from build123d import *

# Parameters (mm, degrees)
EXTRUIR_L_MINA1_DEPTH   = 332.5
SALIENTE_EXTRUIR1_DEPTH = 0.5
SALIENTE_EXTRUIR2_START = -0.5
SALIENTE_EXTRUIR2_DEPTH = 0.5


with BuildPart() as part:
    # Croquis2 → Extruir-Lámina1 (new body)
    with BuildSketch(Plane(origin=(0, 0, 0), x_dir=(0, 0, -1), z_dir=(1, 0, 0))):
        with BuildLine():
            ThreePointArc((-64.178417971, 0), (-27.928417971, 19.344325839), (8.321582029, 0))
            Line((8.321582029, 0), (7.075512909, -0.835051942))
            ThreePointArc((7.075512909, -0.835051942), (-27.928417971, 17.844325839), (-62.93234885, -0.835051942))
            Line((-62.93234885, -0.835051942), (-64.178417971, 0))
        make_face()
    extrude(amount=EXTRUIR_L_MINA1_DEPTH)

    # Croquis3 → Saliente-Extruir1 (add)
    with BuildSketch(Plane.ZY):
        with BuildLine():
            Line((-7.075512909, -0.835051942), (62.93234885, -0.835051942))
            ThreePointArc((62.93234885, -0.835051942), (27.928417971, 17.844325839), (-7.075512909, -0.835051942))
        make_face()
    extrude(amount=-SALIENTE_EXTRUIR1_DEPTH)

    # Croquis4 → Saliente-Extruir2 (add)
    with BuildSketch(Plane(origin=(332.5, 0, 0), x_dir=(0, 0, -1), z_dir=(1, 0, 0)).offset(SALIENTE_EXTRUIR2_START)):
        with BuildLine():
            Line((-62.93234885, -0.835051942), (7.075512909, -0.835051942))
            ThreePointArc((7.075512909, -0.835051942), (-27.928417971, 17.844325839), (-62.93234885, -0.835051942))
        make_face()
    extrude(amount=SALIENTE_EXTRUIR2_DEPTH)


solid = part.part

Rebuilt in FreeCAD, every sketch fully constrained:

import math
import FreeCAD as App
import Part
import Sketcher
Q = App.Units.Quantity

doc = App.newDocument("Part")
params = doc.addObject("Spreadsheet::Sheet", "Params")
for row, (alias, value) in enumerate([
    ("sketch1_length", "1.5 mm"),
    ("pad1_length", "332.5 mm"),
    ("pad2_length", "0.5 mm"),
    ("pad3_length", "0.5 mm"),
], start=1):
    params.set(f"A{row}", alias)
    params.set(f"B{row}", "=" + value)
    params.setAlias(f"B{row}", alias)

body = doc.addObject("PartDesign::Body", "Body")

# Sketch on YZ plane
sketch1 = doc.addObject("Sketcher::SketchObject", "Sketch")
body.addObject(sketch1)
sketch1.AttachmentSupport = (doc.YZ_Plane, [""])
sketch1.MapMode = "FlatFace"
sketch1.addGeometry([
    Part.ArcOfCircle(Part.Circle(App.Vector(-24.2929, 27.928418, 0), App.Vector(0, 0, 1), 43.637226), math.radians(-56.172024), math.radians(56.172024)),
    Part.LineSegment(App.Vector(0, 64.178418, 0), App.Vector(-0.835052, 62.932349, 0)),
    Part.ArcOfCircle(Part.Circle(App.Vector(-24.2929, 27.928418, 0), App.Vector(0, 0, 1), 42.137226), math.radians(-56.172024), math.radians(56.172024)),
    Part.LineSegment(App.Vector(-0.835052, -7.075513, 0), App.Vector(0, -8.321582, 0)),
], False)
sketch1.addConstraint([
    Sketcher.Constraint("Coincident", 0, 2, 1, 1),
    Sketcher.Constraint("Coincident", 1, 2, 2, 2),
    Sketcher.Constraint("Coincident", 2, 1, 3, 1),
    Sketcher.Constraint("Coincident", 3, 2, 0, 1),
    Sketcher.Constraint("Coincident", 2, 3, 0, 3),
    Sketcher.Constraint("PointOnObject", 0, 2, -2),
    Sketcher.Constraint("PointOnObject", 3, 2, -2),
    Sketcher.Constraint("Vertical", 1, 2, 2, 1),
    Sketcher.Constraint("Distance", 1, Q("1.5 mm")),
    Sketcher.Constraint("DistanceY", 3, 2, 0, 2, Q("72.5 mm")),
    Sketcher.Constraint("Radius", 0, Q("43.637226 mm")),
    Sketcher.Constraint("DistanceX", 1, 2, -1, 1, Q("0.835052 mm")),
    Sketcher.Constraint("DistanceY", -1, 1, 1, 2, Q("62.932349 mm")),
])
sketch1.setExpression("Constraints[8]", "Params.sketch1_length")
pad1 = doc.addObject("PartDesign::Pad", "Pad")
body.addObject(pad1)
pad1.Profile = sketch1
pad1.setExpression("Length", "Params.pad1_length")

# Sketch on YZ plane
sketch2 = doc.addObject("Sketcher::SketchObject", "Sketch001")
body.addObject(sketch2)
sketch2.AttachmentSupport = (doc.YZ_Plane, [""])
sketch2.MapMode = "FlatFace"
sketch2.addGeometry([
    Part.LineSegment(App.Vector(-0.835052, -7.075513, 0), App.Vector(-0.835052, 62.932349, 0)),
    Part.ArcOfCircle(Part.Circle(App.Vector(-24.2929, 27.928418, 0), App.Vector(0, 0, 1), 42.137226), math.radians(-56.172024), math.radians(56.172024)),
], False)
sketch2.addConstraint([
    Sketcher.Constraint("Coincident", 0, 1, 1, 1),
    Sketcher.Constraint("Coincident", 1, 2, 0, 2),
    Sketcher.Constraint("Vertical", 0),
    Sketcher.Constraint("Radius", 1, Q("42.137226 mm")),
    Sketcher.Constraint("DistanceY", 0, 1, 0, 2, Q("70.007862 mm")),
    Sketcher.Constraint("DistanceX", 1, 3, -1, 1, Q("24.2929 mm")),
    Sketcher.Constraint("DistanceY", -1, 1, 1, 2, Q("62.932349 mm")),
])
pad2 = doc.addObject("PartDesign::Pad", "Pad001")
body.addObject(pad2)
pad2.Profile = sketch2
pad2.setExpression("Length", "Params.pad2_length")

# Sketch on YZ plane
sketch3 = doc.addObject("Sketcher::SketchObject", "Sketch002")
body.addObject(sketch3)
sketch3.AttachmentSupport = (doc.YZ_Plane, [""])
sketch3.MapMode = "FlatFace"
sketch3.AttachmentOffset = App.Placement(App.Vector(0, 0, 332), App.Rotation())
sketch3.addGeometry([
    Part.LineSegment(App.Vector(-0.835052, 62.932349, 0), App.Vector(-0.835052, -7.075513, 0)),
    Part.ArcOfCircle(Part.Circle(App.Vector(-24.2929, 27.928418, 0), App.Vector(0, 0, 1), 42.137226), math.radians(-56.172024), math.radians(56.172024)),
], False)
sketch3.addConstraint([
    Sketcher.Constraint("Coincident", 0, 1, 1, 2),
    Sketcher.Constraint("Coincident", 1, 1, 0, 2),
    Sketcher.Constraint("Vertical", 0),
    Sketcher.Constraint("Radius", 1, Q("42.137226 mm")),
    Sketcher.Constraint("DistanceY", 0, 2, 0, 1, Q("70.007862 mm")),
    Sketcher.Constraint("DistanceX", 1, 3, -1, 1, Q("24.2929 mm")),
    Sketcher.Constraint("DistanceY", -1, 1, 0, 1, Q("62.932349 mm")),
])
pad3 = doc.addObject("PartDesign::Pad", "Pad002")
body.addObject(pad3)
pad3.Profile = sketch3
pad3.setExpression("Length", "Params.pad3_length")

doc.recompute()
